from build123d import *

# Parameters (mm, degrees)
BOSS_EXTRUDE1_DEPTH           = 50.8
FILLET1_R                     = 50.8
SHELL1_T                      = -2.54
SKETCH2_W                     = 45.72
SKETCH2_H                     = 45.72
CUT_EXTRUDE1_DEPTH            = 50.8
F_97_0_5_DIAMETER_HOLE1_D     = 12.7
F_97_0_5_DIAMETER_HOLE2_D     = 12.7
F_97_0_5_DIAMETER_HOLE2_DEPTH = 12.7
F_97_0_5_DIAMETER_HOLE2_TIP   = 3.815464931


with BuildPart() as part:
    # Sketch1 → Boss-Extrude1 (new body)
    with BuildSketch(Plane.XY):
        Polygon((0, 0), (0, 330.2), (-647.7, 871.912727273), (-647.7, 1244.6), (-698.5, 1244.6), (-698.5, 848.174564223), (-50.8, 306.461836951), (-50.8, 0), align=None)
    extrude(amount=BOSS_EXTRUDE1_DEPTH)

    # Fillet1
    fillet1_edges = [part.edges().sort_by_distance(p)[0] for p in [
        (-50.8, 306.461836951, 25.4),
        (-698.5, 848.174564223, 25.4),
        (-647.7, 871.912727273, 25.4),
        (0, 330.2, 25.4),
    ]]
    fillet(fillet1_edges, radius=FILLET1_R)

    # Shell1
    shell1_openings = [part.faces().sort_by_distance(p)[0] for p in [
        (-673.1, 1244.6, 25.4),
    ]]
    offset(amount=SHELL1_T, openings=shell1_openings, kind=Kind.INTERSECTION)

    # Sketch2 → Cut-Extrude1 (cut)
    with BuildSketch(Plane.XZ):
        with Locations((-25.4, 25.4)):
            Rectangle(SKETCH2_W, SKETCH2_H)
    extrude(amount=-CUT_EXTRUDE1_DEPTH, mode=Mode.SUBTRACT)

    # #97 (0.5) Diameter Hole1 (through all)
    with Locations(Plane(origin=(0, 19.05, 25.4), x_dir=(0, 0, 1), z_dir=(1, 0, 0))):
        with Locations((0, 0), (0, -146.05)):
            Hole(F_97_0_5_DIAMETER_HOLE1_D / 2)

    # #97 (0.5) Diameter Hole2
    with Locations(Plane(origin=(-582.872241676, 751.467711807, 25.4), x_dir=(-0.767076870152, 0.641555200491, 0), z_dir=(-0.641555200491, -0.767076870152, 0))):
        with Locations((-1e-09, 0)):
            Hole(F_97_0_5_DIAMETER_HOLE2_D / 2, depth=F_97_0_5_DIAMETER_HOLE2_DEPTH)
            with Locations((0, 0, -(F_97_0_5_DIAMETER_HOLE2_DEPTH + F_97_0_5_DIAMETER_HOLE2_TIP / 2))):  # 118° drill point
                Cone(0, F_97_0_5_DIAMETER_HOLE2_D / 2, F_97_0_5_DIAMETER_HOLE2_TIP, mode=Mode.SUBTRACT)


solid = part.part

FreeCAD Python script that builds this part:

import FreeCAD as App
import Part
import Sketcher
from FreeCAD import Vector
Q = App.Units.Quantity


def edges_at(feature, points):
    """Names of the edges that pass closest to the given points."""
    edges = feature.Shape.Edges
    near = lambda p: min(range(len(edges)), key=lambda i: edges[i].distToShape(Part.Vertex(*p))[0])
    return sorted({f"Edge{near(p) + 1}" for p in points})


def faces_at(feature, points):
    """Names of the faces that lie closest to the given points."""
    faces = feature.Shape.Faces
    near = lambda p: min(range(len(faces)), key=lambda i: faces[i].distToShape(Part.Vertex(*p))[0])
    return sorted({f"Face{near(p) + 1}" for p in points})


def add_polygon(sketch, points):
    """Adds a closed chain of lines whose ends are joined by coincident constraints."""
    first, n = sketch.GeometryCount, len(points)
    for a, b in zip(points, points[1:] + points[:1]):
        sketch.addGeometry(Part.LineSegment(App.Vector(*a, 0), App.Vector(*b, 0)), False)
    for i in range(n):
        sketch.addConstraint(Sketcher.Constraint("Coincident", first + i, 2, first + (i + 1) % n, 1))

doc = App.newDocument("Part")
body = doc.addObject("PartDesign::Body", "Body")

# Sketch on XY plane
sketch1 = body.newObject("Sketcher::SketchObject", "Sketch")
sketch1.AttachmentSupport = (doc.getObject("XY_Plane"), [""])
sketch1.MapMode = "FlatFace"
add_polygon(sketch1, [(0, 0), (0, 330.2), (-647.7, 871.912727), (-647.7, 1244.6), (-698.5, 1244.6), (-698.5, 848.174564), (-50.8, 306.461837), (-50.8, 0)])  # lines 0-7
sketch1.addConstraint([
    Sketcher.Constraint("Vertical", 0),
    Sketcher.Constraint("Vertical", 2),
    Sketcher.Constraint("Horizontal", 3),
    Sketcher.Constraint("Vertical", 4),
    Sketcher.Constraint("Vertical", 6),
    Sketcher.Constraint("Horizontal", 7),
    Sketcher.Constraint("Coincident", 7, 2, -1, 1),
    Sketcher.Constraint("Parallel", 1, 5),
    Sketcher.Constraint("Equal", 3, 7),
    Sketcher.Constraint("DistanceX", 3, 2, 3, 1, Q("2 in")),
    Sketcher.Constraint("DistanceY", 0, 1, 0, 2, Q("13 in")),
    Sketcher.Constraint("DistanceY", -1, 1, 2, 2, Q("49 in")),
    Sketcher.Constraint("DistanceX", 1, 2, -1, 1, Q("25.5 in")),
    Sketcher.Constraint("DistanceY", 2, 1, 2, 2, Q("372.687273 mm")),
    Sketcher.Constraint("DistanceY", 4, 2, 4, 1, Q("396.425436 mm")),
])
pad1 = body.newObject("PartDesign::Pad", "Pad")
pad1.Profile = sketch1
pad1.Length = Q("2 in")
doc.recompute()

fillet = body.newObject("PartDesign::Fillet", "Fillet")
fillet.Base = (pad1, edges_at(pad1, [
    (-50.8, 306.462, 25.4),
    (-698.5, 848.175, 25.4),
    (-647.7, 871.913, 25.4),
    (0, 330.2, 25.4),
]))
fillet.Radius = Q("2 in")
doc.recompute()

thickness = body.newObject("PartDesign::Thickness", "Thickness")
thickness.Base = (fillet, faces_at(fillet, [(-673.1, 1244.6, 25.4)]))
thickness.Value = Q("0.1 in")
thickness.Reversed = True
thickness.Join = "Intersection"

# Sketch on XZ plane
sketch2 = body.newObject("Sketcher::SketchObject", "Sketch001")
sketch2.AttachmentSupport = (doc.getObject("XZ_Plane"), [""])
sketch2.MapMode = "FlatFace"
add_polygon(sketch2, [(-48.26, 48.26), (-48.26, 2.54), (-2.54, 2.54), (-2.54, 48.26)])  # lines 0-3
sketch2.addConstraint([
    Sketcher.Constraint("Vertical", 0),
    Sketcher.Constraint("Horizontal", 1),
    Sketcher.Constraint("Vertical", 2),
    Sketcher.Constraint("Horizontal", 3),
    Sketcher.Constraint("Equal", 3, 0),
    Sketcher.Constraint("DistanceX", 1, 1, 1, 2, Q("1.8 in")),
    Sketcher.Constraint("DistanceX", 0, 2, -1, 1, Q("1.9 in")),
    Sketcher.Constraint("DistanceY", -1, 1, 0, 2, Q("0.1 in")),
])
pocket1 = body.newObject("PartDesign::Pocket", "Pocket")
pocket1.Profile = sketch2
pocket1.Length = Q("2 in")

# Sketch on YZ plane
sketch3 = body.newObject("Sketcher::SketchObject", "Sketch002")
sketch3.AttachmentSupport = (doc.getObject("YZ_Plane"), [""])
sketch3.MapMode = "FlatFace"
sketch3.addGeometry([
    Part.Circle(Vector(19.05, 25.4, 0), Vector(0, 0, 1), 6.35),
    Part.Circle(Vector(165.1, 25.4, 0), Vector(0, 0, 1), 6.35),
], False)
sketch3.addConstraint([
    Sketcher.Constraint("Equal", 0, 1),
    Sketcher.Constraint("Horizontal", 0, 3, 1, 3),
    Sketcher.Constraint("Diameter", 0, Q("0.5 in")),
    Sketcher.Constraint("DistanceY", -1, 1, 0, 3, Q("1 in")),
    Sketcher.Constraint("DistanceX", -1, 1, 1, 3, Q("6.5 in")),
    Sketcher.Constraint("DistanceX", -1, 1, 0, 3, Q("0.75 in")),
])
doc.recompute()
hole = body.newObject("PartDesign::Hole", "Hole")
hole.Profile = sketch3
hole.ThreadType = "None"
hole.Diameter = Q("0.5 in")
hole.DepthType = "ThroughAll"

# Sketch on an angled plane
sketch4 = body.newObject("Sketcher::SketchObject", "Sketch003")
sketch4.Placement = App.Placement(Vector(129.907731, 155.324462, 0), App.Rotation(Vector(-0.76707687, 0.6415552, 0), Vector(0, 0, -0.999999999), Vector(-0.6415552, -0.76707687, 0), "ZXY"))
sketch4.addGeometry(Part.Circle(Vector(929.215833, -25.4, 0), Vector(0, 0, 1), 6.35), False)
sketch4.addConstraint([
    Sketcher.Constraint("Diameter", 0, Q("0.5 in")),
    Sketcher.Constraint("DistanceY", 0, 3, -1, 1, Q("1 in")),
    Sketcher.Constraint("DistanceX", -1, 1, 0, 3, Q("929.215833 mm")),
])
doc.recompute()
hole2 = body.newObject("PartDesign::Hole", "Hole001")
hole2.Profile = sketch4
hole2.ThreadType = "None"
hole2.Diameter = Q("0.5 in")
hole2.DepthType = "Dimension"
hole2.Depth = Q("0.5 in")
hole2.DrillPoint = "Angled"
hole2.DrillPointAngle = 118

doc.recompute()
